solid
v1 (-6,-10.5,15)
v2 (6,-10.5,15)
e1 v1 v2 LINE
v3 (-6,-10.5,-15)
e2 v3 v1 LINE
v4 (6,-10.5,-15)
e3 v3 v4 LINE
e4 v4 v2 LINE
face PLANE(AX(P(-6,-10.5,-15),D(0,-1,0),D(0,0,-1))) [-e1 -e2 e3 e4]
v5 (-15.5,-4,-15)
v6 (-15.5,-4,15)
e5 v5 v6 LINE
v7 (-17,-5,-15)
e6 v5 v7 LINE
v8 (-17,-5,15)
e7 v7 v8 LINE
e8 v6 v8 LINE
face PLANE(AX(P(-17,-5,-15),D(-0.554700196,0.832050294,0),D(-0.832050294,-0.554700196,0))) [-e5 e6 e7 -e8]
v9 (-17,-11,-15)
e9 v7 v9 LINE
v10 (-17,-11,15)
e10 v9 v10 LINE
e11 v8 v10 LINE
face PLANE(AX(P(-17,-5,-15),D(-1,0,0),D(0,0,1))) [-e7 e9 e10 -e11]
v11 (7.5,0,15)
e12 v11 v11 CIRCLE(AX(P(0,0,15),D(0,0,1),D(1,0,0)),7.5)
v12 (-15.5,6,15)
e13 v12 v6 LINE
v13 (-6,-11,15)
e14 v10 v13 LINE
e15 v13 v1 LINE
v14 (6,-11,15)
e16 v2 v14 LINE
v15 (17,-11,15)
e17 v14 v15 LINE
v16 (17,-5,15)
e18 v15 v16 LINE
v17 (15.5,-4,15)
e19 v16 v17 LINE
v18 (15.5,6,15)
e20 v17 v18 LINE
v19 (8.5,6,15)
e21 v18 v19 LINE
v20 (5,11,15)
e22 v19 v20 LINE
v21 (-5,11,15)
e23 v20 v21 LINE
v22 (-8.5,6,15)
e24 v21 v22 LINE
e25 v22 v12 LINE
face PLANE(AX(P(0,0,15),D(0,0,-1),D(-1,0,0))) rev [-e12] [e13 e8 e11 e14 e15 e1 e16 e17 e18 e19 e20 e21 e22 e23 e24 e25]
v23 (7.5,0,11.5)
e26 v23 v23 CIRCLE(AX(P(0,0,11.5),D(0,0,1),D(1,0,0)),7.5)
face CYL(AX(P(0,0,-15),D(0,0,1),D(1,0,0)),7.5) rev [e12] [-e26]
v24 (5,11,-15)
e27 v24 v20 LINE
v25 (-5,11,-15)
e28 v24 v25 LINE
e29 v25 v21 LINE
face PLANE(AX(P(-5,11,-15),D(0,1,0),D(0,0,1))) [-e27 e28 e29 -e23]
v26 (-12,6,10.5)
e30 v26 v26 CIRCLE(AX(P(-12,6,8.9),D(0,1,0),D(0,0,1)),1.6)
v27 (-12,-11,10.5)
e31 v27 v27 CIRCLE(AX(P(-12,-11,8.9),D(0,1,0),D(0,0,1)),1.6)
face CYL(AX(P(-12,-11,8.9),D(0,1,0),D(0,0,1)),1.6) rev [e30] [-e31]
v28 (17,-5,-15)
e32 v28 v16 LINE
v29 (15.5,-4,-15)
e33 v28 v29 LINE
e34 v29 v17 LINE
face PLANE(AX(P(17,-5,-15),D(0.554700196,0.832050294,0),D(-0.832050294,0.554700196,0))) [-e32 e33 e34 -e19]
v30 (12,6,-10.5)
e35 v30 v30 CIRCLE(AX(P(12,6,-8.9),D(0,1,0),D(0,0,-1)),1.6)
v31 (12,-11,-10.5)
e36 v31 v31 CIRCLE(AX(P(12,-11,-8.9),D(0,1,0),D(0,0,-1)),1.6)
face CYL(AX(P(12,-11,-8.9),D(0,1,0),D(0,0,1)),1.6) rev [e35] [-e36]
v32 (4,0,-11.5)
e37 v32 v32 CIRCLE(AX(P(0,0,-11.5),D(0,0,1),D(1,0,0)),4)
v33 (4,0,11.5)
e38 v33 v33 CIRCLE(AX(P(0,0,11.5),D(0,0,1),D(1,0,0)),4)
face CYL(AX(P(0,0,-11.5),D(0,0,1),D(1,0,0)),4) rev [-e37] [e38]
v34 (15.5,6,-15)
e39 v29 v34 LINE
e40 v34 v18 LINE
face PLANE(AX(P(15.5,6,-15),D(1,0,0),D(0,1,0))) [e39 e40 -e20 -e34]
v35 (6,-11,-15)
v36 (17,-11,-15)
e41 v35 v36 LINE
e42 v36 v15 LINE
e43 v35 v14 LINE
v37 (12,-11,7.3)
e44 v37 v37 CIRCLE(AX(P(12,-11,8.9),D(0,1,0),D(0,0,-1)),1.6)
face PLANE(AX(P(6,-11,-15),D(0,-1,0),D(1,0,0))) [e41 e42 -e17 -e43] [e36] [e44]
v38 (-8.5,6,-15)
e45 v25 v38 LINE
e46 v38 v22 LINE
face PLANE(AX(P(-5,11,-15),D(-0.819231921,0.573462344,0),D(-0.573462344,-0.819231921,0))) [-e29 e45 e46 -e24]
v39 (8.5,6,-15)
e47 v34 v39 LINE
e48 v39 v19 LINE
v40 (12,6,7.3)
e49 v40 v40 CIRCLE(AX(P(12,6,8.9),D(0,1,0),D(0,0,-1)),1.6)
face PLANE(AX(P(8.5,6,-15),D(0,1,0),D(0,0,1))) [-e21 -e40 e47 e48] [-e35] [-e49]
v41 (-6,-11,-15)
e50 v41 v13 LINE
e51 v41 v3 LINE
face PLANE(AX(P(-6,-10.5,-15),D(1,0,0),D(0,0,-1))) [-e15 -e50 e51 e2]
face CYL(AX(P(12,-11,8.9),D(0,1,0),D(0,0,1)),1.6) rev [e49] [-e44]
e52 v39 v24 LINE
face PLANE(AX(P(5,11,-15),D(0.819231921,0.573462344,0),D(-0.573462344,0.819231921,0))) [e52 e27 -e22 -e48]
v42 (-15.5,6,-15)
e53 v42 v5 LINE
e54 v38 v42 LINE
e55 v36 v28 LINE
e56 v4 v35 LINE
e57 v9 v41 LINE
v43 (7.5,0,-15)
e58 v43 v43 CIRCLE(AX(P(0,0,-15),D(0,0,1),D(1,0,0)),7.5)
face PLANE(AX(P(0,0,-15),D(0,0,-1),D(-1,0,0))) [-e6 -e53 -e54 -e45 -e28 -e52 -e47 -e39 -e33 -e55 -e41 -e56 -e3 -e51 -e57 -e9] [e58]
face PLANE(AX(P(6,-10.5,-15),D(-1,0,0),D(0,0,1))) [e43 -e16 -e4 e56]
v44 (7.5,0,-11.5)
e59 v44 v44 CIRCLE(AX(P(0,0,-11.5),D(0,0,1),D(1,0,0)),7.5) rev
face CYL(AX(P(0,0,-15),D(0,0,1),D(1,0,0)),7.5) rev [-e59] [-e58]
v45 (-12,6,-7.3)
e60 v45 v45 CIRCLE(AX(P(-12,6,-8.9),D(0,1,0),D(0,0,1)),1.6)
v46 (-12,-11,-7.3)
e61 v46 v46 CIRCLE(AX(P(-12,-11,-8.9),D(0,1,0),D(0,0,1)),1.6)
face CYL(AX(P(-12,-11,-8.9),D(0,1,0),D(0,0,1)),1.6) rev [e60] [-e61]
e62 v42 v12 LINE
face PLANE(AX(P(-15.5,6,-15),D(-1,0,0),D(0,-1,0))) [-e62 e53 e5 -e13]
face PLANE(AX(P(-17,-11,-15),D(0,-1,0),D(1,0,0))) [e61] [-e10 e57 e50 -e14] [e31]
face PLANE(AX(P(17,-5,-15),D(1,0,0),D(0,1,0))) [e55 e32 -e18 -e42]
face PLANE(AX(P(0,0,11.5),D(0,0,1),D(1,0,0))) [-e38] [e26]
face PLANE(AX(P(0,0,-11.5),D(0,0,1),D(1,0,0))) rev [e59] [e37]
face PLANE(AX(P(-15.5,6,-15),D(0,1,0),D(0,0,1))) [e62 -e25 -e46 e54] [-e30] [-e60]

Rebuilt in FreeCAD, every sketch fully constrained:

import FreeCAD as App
import Part
import Sketcher

V = App.Vector
Q = App.Units.Quantity


def add_polygon(sketch, points):
    """Adds a closed chain of lines whose ends are joined by coincident constraints."""
    first, n = sketch.GeometryCount, len(points)
    for a, b in zip(points, points[1:] + points[:1]):
        sketch.addGeometry(Part.LineSegment(App.Vector(*a, 0), App.Vector(*b, 0)), False)
    for i in range(n):
        sketch.addConstraint(Sketcher.Constraint("Coincident", first + i, 2, first + (i + 1) % n, 1))

doc = App.newDocument("Part")
params = doc.addObject("Spreadsheet::Sheet", "Params")
for row, (alias, value) in enumerate([
    ("sketch1_width", "7 mm"),
    ("sketch1_width2", "11 mm"),
    ("sketch1_width3", "12 mm"),
    ("sketch1_width4", "10 mm"),
    ("sketch1_height", "6 mm"),
    ("pad1_length", "15 mm"),
    ("pad1_length2", "15 mm"),
    ("sketch2_diameter", "15 mm"),
    ("sketch3_diameter", "15 mm"),
    ("sketch3_diameter2", "8 mm"),
    ("pad2_length", "11.5 mm"),
    ("pad2_length2", "11.5 mm"),
    ("sketch4_diameter", "3.2 mm"),
], start=1):
    params.set(f"A{row}", alias)
    params.set(f"B{row}", "=" + value)
    params.setAlias(f"B{row}", alias)

body = doc.addObject("PartDesign::Body", "Body")

sketch1 = body.newObject("Sketcher::SketchObject", "Sketch")
sketch1.AttachmentSupport = (doc.getObject("XY_Plane"), [""])
sketch1.MapMode = "FlatFace"
add_polygon(sketch1, [(-8.5, 6), (-15.5, 6), (-15.5, -4), (-17, -5), (-17, -11), (-6, -11), (-6, -10.5), (6, -10.5), (6, -11), (17, -11), (17, -5), (15.5, -4), (15.5, 6), (8.5, 6), (5, 11), (-5, 11)])
sketch1.addConstraint([
    Sketcher.Constraint("Horizontal", 0),
    Sketcher.Constraint("Vertical", 1),
    Sketcher.Constraint("Vertical", 3),
    Sketcher.Constraint("Horizontal", 4),
    Sketcher.Constraint("Vertical", 5),
    Sketcher.Constraint("Horizontal", 6),
    Sketcher.Constraint("Vertical", 7),
    Sketcher.Constraint("Horizontal", 8),
    Sketcher.Constraint("Vertical", 9),
    Sketcher.Constraint("Vertical", 11),
    Sketcher.Constraint("Horizontal", 12),
    Sketcher.Constraint("Horizontal", 14),
    Sketcher.Constraint("Symmetric", 4, 2, 7, 2, -2),
    Sketcher.Constraint("Symmetric", 2, 2, 9, 2, -2),
    Sketcher.Constraint("Symmetric", 1, 2, 10, 2, -2),
    Sketcher.Constraint("Symmetric", 12, 2, 15, 2, -2),
    Sketcher.Constraint("Equal", 14, 1),
    Sketcher.Constraint("Equal", 13, 15),
    Sketcher.Constraint("DistanceX", 0, 2, 0, 1, Q("7 mm")),
    Sketcher.Constraint("DistanceX", 4, 1, 4, 2, Q("11 mm")),
    Sketcher.Constraint("DistanceX", 6, 1, 6, 2, Q("12 mm")),
    Sketcher.Constraint("DistanceX", 14, 2, 14, 1, Q("10 mm")),
    Sketcher.Constraint("DistanceY", 3, 2, 3, 1, Q("6 mm")),
    Sketcher.Constraint("DistanceY", 5, 1, 5, 2, Q("0.5 mm")),
    Sketcher.Constraint("DistanceY", -1, 1, 0, 2, Q("6 mm")),
    Sketcher.Constraint("DistanceY", 2, 2, -1, 1, Q("5 mm")),
    Sketcher.Constraint("DistanceY", -1, 1, 13, 2, Q("11 mm")),
    Sketcher.Constraint("DistanceX", 0, 2, -1, 1, Q("15.5 mm")),
])
sketch1.setExpression("Constraints[34]", "Params.sketch1_width")
sketch1.setExpression("Constraints[35]", "Params.sketch1_width2")
sketch1.setExpression("Constraints[36]", "Params.sketch1_width3")
sketch1.setExpression("Constraints[37]", "Params.sketch1_width4")
sketch1.setExpression("Constraints[38]", "Params.sketch1_height")
pad1 = body.newObject("PartDesign::Pad", "Pad")
pad1.Profile = sketch1
pad1.Type = "TwoLengths"
pad1.setExpression("Length", "Params.pad1_length")
pad1.setExpression("Length2", "Params.pad1_length2")

sketch2 = body.newObject("Sketcher::SketchObject", "Sketch001")
sketch2.AttachmentSupport = (doc.getObject("XY_Plane"), [""])
sketch2.MapMode = "FlatFace"
sketch2.AttachmentOffset = App.Placement(V(0, 0, 15), App.Rotation())
sketch2.addGeometry(Part.Circle(V(0, 0, 0), V(0, 0, 1), 8), False)
sketch2.addConstraint([
    Sketcher.Constraint("Coincident", 0, 3, -1, 1),
    Sketcher.Constraint("Diameter", 0, Q("15 mm")),
])
sketch2.setExpression("Constraints[1]", "Params.sketch2_diameter")
pocket1 = body.newObject("PartDesign::Pocket", "Pocket")
pocket1.Profile = sketch2
pocket1.Type = "ThroughAll"

sketch3 = body.newObject("Sketcher::SketchObject", "Sketch002")
sketch3.AttachmentSupport = (doc.getObject("XY_Plane"), [""])
sketch3.MapMode = "FlatFace"
sketch3.addGeometry([
    Part.Circle(V(0, 0, 0), V(0, 0, 1), 7.5),
    Part.Circle(V(0, 0, 0), V(0, 0, 1), 4),
], False)
sketch3.addConstraint([
    Sketcher.Constraint("Coincident", 0, 3, -1, 1),
    Sketcher.Constraint("Coincident", 1, 3, -1, 1),
    Sketcher.Constraint("Diameter", 0, Q("15 mm")),
    Sketcher.Constraint("Diameter", 1, Q("8 mm")),
])
sketch3.setExpression("Constraints[2]", "Params.sketch3_diameter")
sketch3.setExpression("Constraints[3]", "Params.sketch3_diameter2")
pad2 = body.newObject("PartDesign::Pad", "Pad001")
pad2.Profile = sketch3
pad2.Type = "TwoLengths"
pad2.setExpression("Length", "Params.pad2_length")
pad2.setExpression("Length2", "Params.pad2_length2")

sketch4 = body.newObject("Sketcher::SketchObject", "Sketch003")
sketch4.AttachmentSupport = (doc.getObject("XZ_Plane"), [""])
sketch4.MapMode = "FlatFace"
sketch4.AttachmentOffset = App.Placement(V(0, 0, -6), App.Rotation())
sketch4.addGeometry([
    Part.Circle(V(-12, -8.9, 0), V(0, 0, 1), 1.6),
    Part.Circle(V(-12, 8.9, 0), V(0, 0, 1), 1.6),
    Part.Circle(V(12, 8.9, 0), V(0, 0, 1), 1.6),
    Part.Circle(V(12, -8.9, 0), V(0, 0, 1), 1.6),
], False)
sketch4.addConstraint([
    Sketcher.Constraint("Equal", 0, 1),
    Sketcher.Constraint("Equal", 1, 2),
    Sketcher.Constraint("Equal", 2, 3),
    Sketcher.Constraint("Symmetric", 0, 3, 2, 3, -1, 1),
    Sketcher.Constraint("Symmetric", 1, 3, 3, 3, -1, 1),
    Sketcher.Constraint("Symmetric", 1, 3, 2, 3, -2),
    Sketcher.Constraint("Diameter", 0, Q("3.2 mm")),
    Sketcher.Constraint("DistanceX", 0, 3, -1, 1, Q("12 mm")),
    Sketcher.Constraint("DistanceY", 0, 3, -1, 1, Q("8.9 mm")),
])
sketch4.setExpression("Constraints[6]", "Params.sketch4_diameter")
pocket2 = body.newObject("PartDesign::Pocket", "Pocket001")
pocket2.Profile = sketch4
pocket2.Type = "ThroughAll"
pocket2.Reversed = True

doc.recompute()
